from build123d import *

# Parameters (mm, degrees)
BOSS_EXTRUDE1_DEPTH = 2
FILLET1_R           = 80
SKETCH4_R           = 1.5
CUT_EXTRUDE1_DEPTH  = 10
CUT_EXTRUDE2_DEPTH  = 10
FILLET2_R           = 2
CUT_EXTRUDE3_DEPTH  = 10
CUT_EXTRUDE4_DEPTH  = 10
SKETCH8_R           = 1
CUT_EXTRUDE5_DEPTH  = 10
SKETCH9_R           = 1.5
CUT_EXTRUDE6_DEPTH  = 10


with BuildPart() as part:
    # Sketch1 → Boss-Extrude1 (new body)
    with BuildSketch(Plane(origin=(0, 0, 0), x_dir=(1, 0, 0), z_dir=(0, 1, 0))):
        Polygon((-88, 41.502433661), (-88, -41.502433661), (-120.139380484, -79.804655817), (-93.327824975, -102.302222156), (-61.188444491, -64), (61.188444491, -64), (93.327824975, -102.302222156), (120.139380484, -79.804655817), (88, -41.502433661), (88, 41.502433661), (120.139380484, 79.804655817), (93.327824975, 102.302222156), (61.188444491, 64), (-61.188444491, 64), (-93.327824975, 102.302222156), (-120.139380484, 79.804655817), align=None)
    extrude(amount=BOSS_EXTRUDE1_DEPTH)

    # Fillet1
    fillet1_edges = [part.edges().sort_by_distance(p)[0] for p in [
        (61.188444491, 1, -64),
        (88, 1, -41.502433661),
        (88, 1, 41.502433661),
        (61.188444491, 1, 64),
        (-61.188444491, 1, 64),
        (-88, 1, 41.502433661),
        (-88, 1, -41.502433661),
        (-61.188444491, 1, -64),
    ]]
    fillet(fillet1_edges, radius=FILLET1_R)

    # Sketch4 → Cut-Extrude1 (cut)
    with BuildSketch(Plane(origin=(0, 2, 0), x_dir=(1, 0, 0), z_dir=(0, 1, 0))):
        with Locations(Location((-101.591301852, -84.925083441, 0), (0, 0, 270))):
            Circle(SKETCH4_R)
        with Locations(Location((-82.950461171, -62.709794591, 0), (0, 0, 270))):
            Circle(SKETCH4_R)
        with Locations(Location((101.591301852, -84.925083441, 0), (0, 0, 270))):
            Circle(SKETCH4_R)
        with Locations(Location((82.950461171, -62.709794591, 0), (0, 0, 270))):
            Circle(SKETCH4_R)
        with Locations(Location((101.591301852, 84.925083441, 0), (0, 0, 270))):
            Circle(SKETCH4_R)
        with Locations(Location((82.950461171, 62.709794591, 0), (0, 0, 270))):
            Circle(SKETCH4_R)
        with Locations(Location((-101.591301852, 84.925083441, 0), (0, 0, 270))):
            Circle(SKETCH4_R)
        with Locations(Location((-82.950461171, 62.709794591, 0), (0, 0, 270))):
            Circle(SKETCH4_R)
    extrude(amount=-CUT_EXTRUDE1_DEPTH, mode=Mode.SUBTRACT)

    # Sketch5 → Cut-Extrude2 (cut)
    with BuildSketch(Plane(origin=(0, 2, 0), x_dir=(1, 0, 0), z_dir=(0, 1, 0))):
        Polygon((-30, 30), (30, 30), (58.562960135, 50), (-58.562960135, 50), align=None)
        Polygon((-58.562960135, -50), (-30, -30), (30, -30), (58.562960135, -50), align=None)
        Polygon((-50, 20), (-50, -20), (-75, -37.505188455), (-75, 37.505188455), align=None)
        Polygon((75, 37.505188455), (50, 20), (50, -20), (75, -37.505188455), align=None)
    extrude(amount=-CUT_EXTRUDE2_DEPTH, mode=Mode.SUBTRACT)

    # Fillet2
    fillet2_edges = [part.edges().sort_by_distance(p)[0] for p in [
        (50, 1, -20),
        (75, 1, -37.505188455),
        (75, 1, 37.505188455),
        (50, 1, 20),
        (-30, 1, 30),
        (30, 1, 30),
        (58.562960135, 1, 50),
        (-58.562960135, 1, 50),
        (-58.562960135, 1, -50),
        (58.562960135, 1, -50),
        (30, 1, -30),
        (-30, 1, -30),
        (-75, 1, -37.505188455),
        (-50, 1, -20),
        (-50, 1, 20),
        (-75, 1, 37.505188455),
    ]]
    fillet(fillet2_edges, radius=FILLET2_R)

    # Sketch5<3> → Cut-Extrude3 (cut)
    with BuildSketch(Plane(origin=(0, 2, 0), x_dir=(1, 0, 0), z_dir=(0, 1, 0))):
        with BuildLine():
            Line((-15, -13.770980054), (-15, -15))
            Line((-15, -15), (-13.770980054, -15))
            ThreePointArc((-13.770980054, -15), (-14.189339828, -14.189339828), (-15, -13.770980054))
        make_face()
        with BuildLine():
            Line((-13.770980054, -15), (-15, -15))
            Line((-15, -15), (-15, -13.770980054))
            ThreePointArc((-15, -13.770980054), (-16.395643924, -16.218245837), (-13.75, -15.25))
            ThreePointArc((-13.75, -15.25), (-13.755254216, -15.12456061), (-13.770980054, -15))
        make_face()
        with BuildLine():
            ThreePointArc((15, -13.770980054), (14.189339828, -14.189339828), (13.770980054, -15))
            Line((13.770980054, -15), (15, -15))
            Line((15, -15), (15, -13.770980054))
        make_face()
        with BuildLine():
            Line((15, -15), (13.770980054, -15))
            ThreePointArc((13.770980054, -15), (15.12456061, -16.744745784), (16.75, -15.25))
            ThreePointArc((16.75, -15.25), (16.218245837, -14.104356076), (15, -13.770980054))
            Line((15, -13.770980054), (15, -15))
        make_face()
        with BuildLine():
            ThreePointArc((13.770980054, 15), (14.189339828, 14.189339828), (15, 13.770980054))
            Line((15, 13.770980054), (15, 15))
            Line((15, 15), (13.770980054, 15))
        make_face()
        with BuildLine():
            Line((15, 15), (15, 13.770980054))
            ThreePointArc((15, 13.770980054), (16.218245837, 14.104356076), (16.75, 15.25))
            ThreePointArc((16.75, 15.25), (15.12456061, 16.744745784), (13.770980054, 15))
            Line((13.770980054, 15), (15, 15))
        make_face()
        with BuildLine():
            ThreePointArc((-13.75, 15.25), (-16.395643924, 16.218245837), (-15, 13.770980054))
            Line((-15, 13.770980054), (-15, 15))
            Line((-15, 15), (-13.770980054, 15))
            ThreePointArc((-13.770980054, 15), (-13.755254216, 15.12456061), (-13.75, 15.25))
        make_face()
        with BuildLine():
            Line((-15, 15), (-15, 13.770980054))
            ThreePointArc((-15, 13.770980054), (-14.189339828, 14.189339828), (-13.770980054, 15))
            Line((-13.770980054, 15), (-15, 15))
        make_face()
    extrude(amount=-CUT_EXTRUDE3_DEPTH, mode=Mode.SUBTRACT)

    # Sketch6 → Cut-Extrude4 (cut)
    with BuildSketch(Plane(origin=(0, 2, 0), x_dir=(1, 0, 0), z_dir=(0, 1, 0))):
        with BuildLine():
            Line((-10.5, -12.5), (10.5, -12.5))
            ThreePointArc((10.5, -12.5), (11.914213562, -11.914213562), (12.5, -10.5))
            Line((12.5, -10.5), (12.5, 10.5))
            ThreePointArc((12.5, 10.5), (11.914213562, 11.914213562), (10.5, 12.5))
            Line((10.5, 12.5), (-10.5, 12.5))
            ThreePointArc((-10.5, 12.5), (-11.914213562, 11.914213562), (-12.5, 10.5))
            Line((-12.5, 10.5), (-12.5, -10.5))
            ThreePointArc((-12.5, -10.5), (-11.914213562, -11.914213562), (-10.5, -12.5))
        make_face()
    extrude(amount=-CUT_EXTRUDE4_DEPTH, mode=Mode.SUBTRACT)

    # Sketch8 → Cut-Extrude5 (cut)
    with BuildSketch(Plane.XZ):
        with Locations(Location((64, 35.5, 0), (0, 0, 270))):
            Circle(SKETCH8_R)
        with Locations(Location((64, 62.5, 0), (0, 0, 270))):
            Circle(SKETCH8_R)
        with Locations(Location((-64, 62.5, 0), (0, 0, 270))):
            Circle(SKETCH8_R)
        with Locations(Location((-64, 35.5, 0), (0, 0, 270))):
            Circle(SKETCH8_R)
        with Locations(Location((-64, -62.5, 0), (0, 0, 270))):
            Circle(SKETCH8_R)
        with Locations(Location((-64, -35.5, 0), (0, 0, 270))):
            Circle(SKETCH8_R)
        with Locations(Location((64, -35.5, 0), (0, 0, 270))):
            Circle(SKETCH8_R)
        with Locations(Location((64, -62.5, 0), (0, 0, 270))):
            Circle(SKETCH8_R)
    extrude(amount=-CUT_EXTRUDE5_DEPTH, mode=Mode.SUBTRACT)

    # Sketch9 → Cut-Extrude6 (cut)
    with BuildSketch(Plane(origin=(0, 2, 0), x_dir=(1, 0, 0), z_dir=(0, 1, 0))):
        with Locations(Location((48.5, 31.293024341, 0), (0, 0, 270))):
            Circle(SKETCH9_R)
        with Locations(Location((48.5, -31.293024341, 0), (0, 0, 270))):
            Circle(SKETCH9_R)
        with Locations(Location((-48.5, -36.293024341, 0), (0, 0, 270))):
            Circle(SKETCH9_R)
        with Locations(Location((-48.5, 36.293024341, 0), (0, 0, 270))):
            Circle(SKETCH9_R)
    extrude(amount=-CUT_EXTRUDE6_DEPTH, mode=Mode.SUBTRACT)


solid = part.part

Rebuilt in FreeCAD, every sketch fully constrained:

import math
import FreeCAD as App
import Part
import Sketcher
Q = App.Units.Quantity


def edges_at(feature, points):
    """Names of the edges that pass closest to the given points."""
    edges = feature.Shape.Edges
    near = lambda p: min(range(len(edges)), key=lambda i: edges[i].distToShape(Part.Vertex(*p))[0])
    return sorted({f"Edge{near(p) + 1}" for p in points})

doc = App.newDocument("Part")
body = doc.addObject("PartDesign::Body", "Body")

# Sketch on XZ plane
sketch1 = body.newObject("Sketcher::SketchObject", "Sketch")
sketch1.AttachmentSupport = (doc.getObject("XZ_Plane"), [""])
sketch1.MapMode = "FlatFace"
sketch1.addGeometry([
    Part.LineSegment(App.Vector(-88, -42, 0), App.Vector(-88, 42, 0)),  # 0
    Part.LineSegment(App.Vector(-88, 42, 0), App.Vector(-120, 80, 0)),  # 1
    Part.LineSegment(App.Vector(-120, 80, 0), App.Vector(-93, 102, 0)),  # 2
    Part.LineSegment(App.Vector(-93, 102, 0), App.Vector(-61, 64, 0)),  # 3
    Part.LineSegment(App.Vector(-61, 64, 0), App.Vector(61, 64, 0)),  # 4
    Part.LineSegment(App.Vector(61, 64, 0), App.Vector(93, 102, 0)),  # 5
    Part.LineSegment(App.Vector(93, 102, 0), App.Vector(120, 80, 0)),  # 6
    Part.LineSegment(App.Vector(120, 80, 0), App.Vector(88, 42, 0)),  # 7
    Part.LineSegment(App.Vector(88, 42, 0), App.Vector(88, -42, 0)),  # 8
    Part.LineSegment(App.Vector(88, -42, 0), App.Vector(120, -80, 0)),  # 9
    Part.LineSegment(App.Vector(120, -80, 0), App.Vector(93, -102, 0)),  # 10
    Part.LineSegment(App.Vector(93, -102, 0), App.Vector(61, -64, 0)),  # 11
    Part.LineSegment(App.Vector(61, -64, 0), App.Vector(-61, -64, 0)),  # 12
    Part.LineSegment(App.Vector(-61, -64, 0), App.Vector(-93, -102, 0)),  # 13
    Part.LineSegment(App.Vector(-93, -102, 0), App.Vector(-120, -80, 0)),  # 14
    Part.LineSegment(App.Vector(-120, -80, 0), App.Vector(-88, -42, 0)),  # 15
], False)
sketch1.addConstraint([
    Sketcher.Constraint("Coincident", 0, 2, 1, 1),
    Sketcher.Constraint("Coincident", 1, 2, 2, 1),
    Sketcher.Constraint("Coincident", 2, 2, 3, 1),
    Sketcher.Constraint("Coincident", 3, 2, 4, 1),
    Sketcher.Constraint("Coincident", 4, 2, 5, 1),
    Sketcher.Constraint("Coincident", 5, 2, 6, 1),
    Sketcher.Constraint("Coincident", 6, 2, 7, 1),
    Sketcher.Constraint("Coincident", 7, 2, 8, 1),
    Sketcher.Constraint("Coincident", 8, 2, 9, 1),
    Sketcher.Constraint("Coincident", 9, 2, 10, 1),
    Sketcher.Constraint("Coincident", 10, 2, 11, 1),
    Sketcher.Constraint("Coincident", 11, 2, 12, 1),
    Sketcher.Constraint("Coincident", 12, 2, 13, 1),
    Sketcher.Constraint("Coincident", 13, 2, 14, 1),
    Sketcher.Constraint("Coincident", 14, 2, 15, 1),
    Sketcher.Constraint("Coincident", 15, 2, 0, 1),
    Sketcher.Constraint("Vertical", 0),
    Sketcher.Constraint("Horizontal", 4),
    Sketcher.Constraint("Vertical", 8),
    Sketcher.Constraint("Horizontal", 12),
    Sketcher.Constraint("Symmetric", 0, 2, 8, 2, -1, 1),
    Sketcher.Constraint("Symmetric", 1, 2, 9, 2, -1, 1),
    Sketcher.Constraint("Symmetric", 2, 2, 10, 2, -1, 1),
    Sketcher.Constraint("Symmetric", 3, 2, 11, 2, -1, 1),
    Sketcher.Constraint("Symmetric", 5, 2, 13, 2, -1, 1),
    Sketcher.Constraint("Symmetric", 6, 2, 14, 2, -1, 1),
    Sketcher.Constraint("Symmetric", 2, 2, 5, 2, -2),
    Sketcher.Constraint("Symmetric", 1, 2, 6, 2, -2),
    Sketcher.Constraint("Perpendicular", 1, 2),
    Sketcher.Constraint("Perpendicular", 2, 3),
    Sketcher.Constraint("Perpendicular", 5, 6),
    Sketcher.Constraint("Perpendicular", 6, 7),
    Sketcher.Constraint("Parallel", 7, 13),
    Sketcher.Constraint("Perpendicular", 14, 15),
    Sketcher.Constraint("Equal", 1, 3),
    Sketcher.Constraint("Angle", 1, Q("130 deg")),
    Sketcher.Constraint("Distance", 1, 50.0),
    Sketcher.Constraint("Distance", 2, 35.0),
    Sketcher.Constraint("DistanceX", 0, 2, -1, 1, 88.0),
    Sketcher.Constraint("DistanceY", -1, 1, 3, 2, 64.0),
])
pad1 = body.newObject("PartDesign::Pad", "Pad")
pad1.Profile = sketch1
pad1.Length = 2
pad1.Reversed = True
doc.recompute()

fillet = body.newObject("PartDesign::Fillet", "Fillet")
fillet.Base = (pad1, edges_at(pad1, [
    (61.188, 1, -64),
    (88, 1, -41.502),
    (88, 1, 41.502),
    (61.188, 1, 64),
    (-61.188, 1, 64),
    (-88, 1, 41.502),
    (-88, 1, -41.502),
    (-61.188, 1, -64),
]))
fillet.Radius = 80

# Sketch on XZ plane
sketch2 = body.newObject("Sketcher::SketchObject", "Sketch001")
sketch2.AttachmentSupport = (doc.getObject("XZ_Plane"), [""])
sketch2.MapMode = "FlatFace"
sketch2.AttachmentOffset = App.Placement(App.Vector(0, 0, -2), App.Rotation())
sketch2.addGeometry([
    Part.Circle(App.Vector(-101.6, 84.9, 0), App.Vector(0, 0, 1), 1.5),  # 0
    Part.Circle(App.Vector(-83, 62.7, 0), App.Vector(0, 0, 1), 1.5),  # 1
    Part.Circle(App.Vector(101.6, 84.9, 0), App.Vector(0, 0, 1), 1.5),  # 2
    Part.Circle(App.Vector(83, 62.7, 0), App.Vector(0, 0, 1), 1.5),  # 3
    Part.Circle(App.Vector(101.6, -84.9, 0), App.Vector(0, 0, 1), 1.5),  # 4
    Part.Circle(App.Vector(83, -62.7, 0), App.Vector(0, 0, 1), 1.5),  # 5
    Part.Circle(App.Vector(-101.6, -84.9, 0), App.Vector(0, 0, 1), 1.5),  # 6
    Part.Circle(App.Vector(-83, -62.7, 0), App.Vector(0, 0, 1), 1.5),  # 7
], False)
sketch2.addConstraint([
    Sketcher.Constraint("Equal", 0, 1),
    Sketcher.Constraint("Equal", 1, 2),
    Sketcher.Constraint("Equal", 2, 3),
    Sketcher.Constraint("Equal", 3, 4),
    Sketcher.Constraint("Equal", 4, 5),
    Sketcher.Constraint("Equal", 5, 6),
    Sketcher.Constraint("Equal", 6, 7),
    Sketcher.Constraint("Symmetric", 0, 3, 4, 3, -1, 1),
    Sketcher.Constraint("Symmetric", 1, 3, 5, 3, -1, 1),
    Sketcher.Constraint("Symmetric", 2, 3, 6, 3, -1, 1),
    Sketcher.Constraint("Symmetric", 3, 3, 7, 3, -1, 1),
    Sketcher.Constraint("Symmetric", 0, 3, 2, 3, -2),
    Sketcher.Constraint("Symmetric", 1, 3, 3, 3, -2),
    Sketcher.Constraint("Diameter", 0, 3.0),
    Sketcher.Constraint("DistanceX", 0, 3, -1, 1, 101.591302),
    Sketcher.Constraint("DistanceX", 1, 3, -1, 1, 82.950461),
    Sketcher.Constraint("DistanceY", 1, 3, 0, 3, 22.215289),
    Sketcher.Constraint("DistanceY", 4, 3, 3, 3, 147.634878),
])
pocket1 = body.newObject("PartDesign::Pocket", "Pocket")
pocket1.Profile = sketch2
pocket1.Length = 10
pocket1.Reversed = True

# Sketch on XZ plane
sketch3 = body.newObject("Sketcher::SketchObject", "Sketch002")
sketch3.AttachmentSupport = (doc.getObject("XZ_Plane"), [""])
sketch3.MapMode = "FlatFace"
sketch3.AttachmentOffset = App.Placement(App.Vector(0, 0, -2), App.Rotation())
sketch3.addGeometry([
    Part.LineSegment(App.Vector(-30, -30, 0), App.Vector(30, -30, 0)),  # 0
    Part.LineSegment(App.Vector(30, -30, 0), App.Vector(59, -50, 0)),  # 1
    Part.LineSegment(App.Vector(59, -50, 0), App.Vector(-59, -50, 0)),  # 2
    Part.LineSegment(App.Vector(-59, -50, 0), App.Vector(-30, -30, 0)),  # 3
    Part.LineSegment(App.Vector(-30, 30, 0), App.Vector(-59, 50, 0)),  # 4
    Part.LineSegment(App.Vector(-59, 50, 0), App.Vector(59, 50, 0)),  # 5
    Part.LineSegment(App.Vector(59, 50, 0), App.Vector(30, 30, 0)),  # 6
    Part.LineSegment(App.Vector(30, 30, 0), App.Vector(-30, 30, 0)),  # 7
    Part.LineSegment(App.Vector(-50, 20, 0), App.Vector(-50, -20, 0)),  # 8
    Part.LineSegment(App.Vector(-50, -20, 0), App.Vector(-75, -38, 0)),  # 9
    Part.LineSegment(App.Vector(-75, -38, 0), App.Vector(-75, 38, 0)),  # 10
    Part.LineSegment(App.Vector(-75, 38, 0), App.Vector(-50, 20, 0)),  # 11
    Part.LineSegment(App.Vector(75, -38, 0), App.Vector(50, -20, 0)),  # 12
    Part.LineSegment(App.Vector(50, -20, 0), App.Vector(50, 20, 0)),  # 13
    Part.LineSegment(App.Vector(50, 20, 0), App.Vector(75, 38, 0)),  # 14
    Part.LineSegment(App.Vector(75, 38, 0), App.Vector(75, -38, 0)),  # 15
], False)
sketch3.addConstraint([
    Sketcher.Constraint("Coincident", 0, 2, 1, 1),
    Sketcher.Constraint("Coincident", 1, 2, 2, 1),
    Sketcher.Constraint("Coincident", 2, 2, 3, 1),
    Sketcher.Constraint("Coincident", 3, 2, 0, 1),
    Sketcher.Constraint("Coincident", 4, 2, 5, 1),
    Sketcher.Constraint("Coincident", 5, 2, 6, 1),
    Sketcher.Constraint("Coincident", 6, 2, 7, 1),
    Sketcher.Constraint("Coincident", 7, 2, 4, 1),
    Sketcher.Constraint("Coincident", 8, 2, 9, 1),
    Sketcher.Constraint("Coincident", 9, 2, 10, 1),
    Sketcher.Constraint("Coincident", 10, 2, 11, 1),
    Sketcher.Constraint("Coincident", 11, 2, 8, 1),
    Sketcher.Constraint("Coincident", 12, 2, 13, 1),
    Sketcher.Constraint("Coincident", 13, 2, 14, 1),
    Sketcher.Constraint("Coincident", 14, 2, 15, 1),
    Sketcher.Constraint("Coincident", 15, 2, 12, 1),
    Sketcher.Constraint("Horizontal", 0),
    Sketcher.Constraint("Horizontal", 2),
    Sketcher.Constraint("Horizontal", 5),
    Sketcher.Constraint("Horizontal", 7),
    Sketcher.Constraint("Vertical", 8),
    Sketcher.Constraint("Vertical", 10),
    Sketcher.Constraint("Vertical", 13),
    Sketcher.Constraint("Vertical", 15),
    Sketcher.Constraint("Symmetric", 1, 2, 4, 2, -1, 1),
    Sketcher.Constraint("Symmetric", 3, 2, 6, 2, -1, 1),
    Sketcher.Constraint("Symmetric", 11, 2, 12, 2, -1, 1),
    Sketcher.Constraint("Symmetric", 9, 2, 14, 2, -1, 1),
    Sketcher.Constraint("Parallel", 1, 4),
    Sketcher.Constraint("Parallel", 3, 6),
    Sketcher.Constraint("Parallel", 6, 9),
    Sketcher.Constraint("Parallel", 4, 11),
    Sketcher.Constraint("Parallel", 11, 12),
    Sketcher.Constraint("Parallel", 9, 14),
    Sketcher.Constraint("Horizontal", 8, 2, 12, 2),
    Sketcher.Constraint("Horizontal", 10, 2, 14, 2),
    Sketcher.Constraint("Vertical", 2, 2, 4, 2),
    Sketcher.Constraint("DistanceX", 0, 1, 0, 2, 60.0),
    Sketcher.Constraint("DistanceY", 8, 2, 8, 1, 40.0),
    Sketcher.Constraint("Angle", 1, Q("-35 deg")),
    Sketcher.Constraint("DistanceY", 0, 2, -1, 1, 30.0),
    Sketcher.Constraint("DistanceY", 1, 2, -1, 1, 50.0),
    Sketcher.Constraint("DistanceX", 8, 2, -1, 1, 50.0),
    Sketcher.Constraint("DistanceX", 9, 2, -1, 1, 75.0),
])
pocket2 = body.newObject("PartDesign::Pocket", "Pocket001")
pocket2.Profile = sketch3
pocket2.Length = 10
pocket2.Reversed = True
doc.recompute()

fillet2 = body.newObject("PartDesign::Fillet", "Fillet001")
fillet2.Base = (pocket2, edges_at(pocket2, [
    (50, 1, -20),
    (75, 1, -37.505),
    (75, 1, 37.505),
    (50, 1, 20),
    (-30, 1, 30),
    (30, 1, 30),
    (58.563, 1, 50),
    (-58.563, 1, 50),
    (-58.563, 1, -50),
    (58.563, 1, -50),
    (30, 1, -30),
    (-30, 1, -30),
    (-75, 1, -37.505),
    (-50, 1, -20),
    (-50, 1, 20),
    (-75, 1, 37.505),
]))
fillet2.Radius = 2

# Sketch on XZ plane
sketch4 = body.newObject("Sketcher::SketchObject", "Sketch003")
sketch4.AttachmentSupport = (doc.getObject("XZ_Plane"), [""])
sketch4.MapMode = "FlatFace"
sketch4.AttachmentOffset = App.Placement(App.Vector(0, 0, -2), App.Rotation())
sketch4.addGeometry([
    Part.ArcOfCircle(Part.Circle(App.Vector(-15.25, 15.25, 0), App.Vector(0, 0, 1), 1.5), math.radians(-80), math.radians(-10)),  # 0
    Part.ArcOfCircle(Part.Circle(App.Vector(-15.25, 15.25, 0), App.Vector(0, 0, 1), 1.5), math.radians(0), math.radians(280)),  # 1
    Part.ArcOfCircle(Part.Circle(App.Vector(-15.25, 15.25, 0), App.Vector(0, 0, 1), 1.5), math.radians(-9.59), math.radians(0)),  # 2
    Part.ArcOfCircle(Part.Circle(App.Vector(15.25, 15.25, 0), App.Vector(0, 0, 1), 1.5), math.radians(-170), math.radians(-100)),  # 3
    Part.ArcOfCircle(Part.Circle(App.Vector(15.25, 15.25, 0), App.Vector(0, 0, 1), 1.5), math.radians(0), math.radians(190)),  # 4
    Part.ArcOfCircle(Part.Circle(App.Vector(15.25, 15.25, 0), App.Vector(0, 0, 1), 1.5), math.radians(-100), math.radians(0)),  # 5
    Part.ArcOfCircle(Part.Circle(App.Vector(15.25, -15.25, 0), App.Vector(0, 0, 1), 1.5), math.radians(100), math.radians(170)),  # 6
    Part.ArcOfCircle(Part.Circle(App.Vector(15.25, -15.25, 0), App.Vector(0, 0, 1), 1.5), math.radians(0), math.radians(100)),  # 7
    Part.ArcOfCircle(Part.Circle(App.Vector(15.25, -15.25, 0), App.Vector(0, 0, 1), 1.5), math.radians(170), math.radians(360)),  # 8
    Part.ArcOfCircle(Part.Circle(App.Vector(-15.25, -15.25, 0), App.Vector(0, 0, 1), 1.5), math.radians(80), math.radians(360)),  # 9
    Part.ArcOfCircle(Part.Circle(App.Vector(-15.25, -15.25, 0), App.Vector(0, 0, 1), 1.5), math.radians(10), math.radians(80)),  # 10
    Part.ArcOfCircle(Part.Circle(App.Vector(-15.25, -15.25, 0), App.Vector(0, 0, 1), 1.5), math.radians(0), math.radians(9.59)),  # 11
], False)
sketch4.addConstraint([
    Sketcher.Constraint("Tangent", 0, 1, 1, 2),
    Sketcher.Constraint("Tangent", 1, 1, 2, 2),
    Sketcher.Constraint("Tangent", 2, 1, 0, 2),
    Sketcher.Constraint("Tangent", 3, 1, 4, 2),
    Sketcher.Constraint("Tangent", 4, 1, 5, 2),
    Sketcher.Constraint("Tangent", 5, 1, 3, 2),
    Sketcher.Constraint("Tangent", 6, 1, 7, 2),
    Sketcher.Constraint("Tangent", 7, 1, 8, 2),
    Sketcher.Constraint("Tangent", 8, 1, 6, 2),
    Sketcher.Constraint("Tangent", 9, 1, 10, 2),
    Sketcher.Constraint("Tangent", 10, 1, 11, 2),
    Sketcher.Constraint("Tangent", 11, 1, 9, 2),
    Sketcher.Constraint("Equal", 2, 3),
    Sketcher.Constraint("Equal", 5, 6),
    Sketcher.Constraint("Equal", 8, 9),
    Sketcher.Constraint("Symmetric", 0, 3, 6, 3, -1, 1),
    Sketcher.Constraint("Symmetric", 3, 3, 9, 3, -1, 1),
    Sketcher.Constraint("Symmetric", 0, 3, 3, 3, -2),
    Sketcher.Constraint("Horizontal", 5, 3, 1, 1),
    Sketcher.Constraint("Horizontal", 2, 1, 3, 1),
    Sketcher.Constraint("Horizontal", 1, 1, 4, 1),
    Sketcher.Constraint("Horizontal", 0, 1, 5, 1),
    Sketcher.Constraint("Horizontal", 11, 3, 7, 1),
    Sketcher.Constraint("Horizontal", 6, 1, 9, 1),
    Sketcher.Constraint("Horizontal", 8, 1, 10, 1),
    Sketcher.Constraint("Horizontal", 7, 1, 11, 1),
    Sketcher.Constraint("Vertical", 5, 1, 6, 1),
    Sketcher.Constraint("Vertical", 3, 1, 8, 1),
    Sketcher.Constraint("Radius", 0, 1.5),
    Sketcher.Constraint("DistanceX", 0, 1, -1, 1, 15.0),
    Sketcher.Constraint("DistanceY", -1, 1, 2, 1, 15.0),
    Sketcher.Constraint("DistanceX", 1, 1, 3, 3, 29.0),
    Sketcher.Constraint("DistanceY", 6, 3, 5, 3, 30.5),
])
pocket3 = body.newObject("PartDesign::Pocket", "Pocket002")
pocket3.Profile = sketch4
pocket3.Length = 10
pocket3.Reversed = True

# Sketch on XZ plane
sketch5 = body.newObject("Sketcher::SketchObject", "Sketch004")
sketch5.AttachmentSupport = (doc.getObject("XZ_Plane"), [""])
sketch5.MapMode = "FlatFace"
sketch5.AttachmentOffset = App.Placement(App.Vector(0, 0, -2), App.Rotation())
sketch5.addGeometry([
    Part.LineSegment(App.Vector(-10.5, 12.5, 0), App.Vector(10.5, 12.5, 0)),  # 0
    Part.ArcOfCircle(Part.Circle(App.Vector(10.5, 10.5, 0), App.Vector(0, 0, 1), 2), math.radians(0), math.radians(90)),  # 1
    Part.LineSegment(App.Vector(12.5, 10.5, 0), App.Vector(12.5, -10.5, 0)),  # 2
    Part.ArcOfCircle(Part.Circle(App.Vector(10.5, -10.5, 0), App.Vector(0, 0, 1), 2), math.radians(-90), math.radians(0)),  # 3
    Part.LineSegment(App.Vector(10.5, -12.5, 0), App.Vector(-10.5, -12.5, 0)),  # 4
    Part.ArcOfCircle(Part.Circle(App.Vector(-10.5, -10.5, 0), App.Vector(0, 0, 1), 2), math.radians(-180), math.radians(-90)),  # 5
    Part.LineSegment(App.Vector(-12.5, -10.5, 0), App.Vector(-12.5, 10.5, 0)),  # 6
    Part.ArcOfCircle(Part.Circle(App.Vector(-10.5, 10.5, 0), App.Vector(0, 0, 1), 2), math.radians(90), math.radians(180)),  # 7
], False)
sketch5.addConstraint([
    Sketcher.Constraint("Tangent", 0, 2, 1, 2),
    Sketcher.Constraint("Tangent", 1, 1, 2, 1),
    Sketcher.Constraint("Tangent", 2, 2, 3, 2),
    Sketcher.Constraint("Tangent", 3, 1, 4, 1),
    Sketcher.Constraint("Tangent", 4, 2, 5, 2),
    Sketcher.Constraint("Tangent", 5, 1, 6, 1),
    Sketcher.Constraint("Tangent", 6, 2, 7, 2),
    Sketcher.Constraint("Tangent", 7, 1, 0, 1),
    Sketcher.Constraint("Horizontal", 0),
    Sketcher.Constraint("Vertical", 2),
    Sketcher.Constraint("Horizontal", 4),
    Sketcher.Constraint("Vertical", 6),
    Sketcher.Constraint("Equal", 1, 3),
    Sketcher.Constraint("Equal", 3, 5),
    Sketcher.Constraint("Equal", 5, 7),
    Sketcher.Constraint("Symmetric", 1, 3, 5, 3, -1, 1),
    Sketcher.Constraint("Equal", 4, 2),
    Sketcher.Constraint("Radius", 1, 2.0),
    Sketcher.Constraint("DistanceX", 0, 1, 0, 2, 21.0),
])
pocket4 = body.newObject("PartDesign::Pocket", "Pocket003")
pocket4.Profile = sketch5
pocket4.Length = 10
pocket4.Reversed = True

# Sketch on XZ plane
sketch6 = body.newObject("Sketcher::SketchObject", "Sketch005")
sketch6.AttachmentSupport = (doc.getObject("XZ_Plane"), [""])
sketch6.MapMode = "FlatFace"
sketch6.addGeometry([
    Part.Circle(App.Vector(64, 35.5, 0), App.Vector(0, 0, 1), 1),  # 0
    Part.Circle(App.Vector(64, 62.5, 0), App.Vector(0, 0, 1), 1),  # 1
    Part.Circle(App.Vector(-64, 62.5, 0), App.Vector(0, 0, 1), 1),  # 2
    Part.Circle(App.Vector(-64, 35.5, 0), App.Vector(0, 0, 1), 1),  # 3
    Part.Circle(App.Vector(-64, -62.5, 0), App.Vector(0, 0, 1), 1),  # 4
    Part.Circle(App.Vector(-64, -35.5, 0), App.Vector(0, 0, 1), 1),  # 5
    Part.Circle(App.Vector(64, -35.5, 0), App.Vector(0, 0, 1), 1),  # 6
    Part.Circle(App.Vector(64, -62.5, 0), App.Vector(0, 0, 1), 1),  # 7
], False)
sketch6.addConstraint([
    Sketcher.Constraint("Equal", 0, 1),
    Sketcher.Constraint("Equal", 1, 2),
    Sketcher.Constraint("Equal", 2, 3),
    Sketcher.Constraint("Equal", 3, 4),
    Sketcher.Constraint("Equal", 4, 5),
    Sketcher.Constraint("Equal", 5, 6),
    Sketcher.Constraint("Equal", 6, 7),
    Sketcher.Constraint("Symmetric", 1, 3, 4, 3, -1, 1),
    Sketcher.Constraint("Symmetric", 0, 3, 5, 3, -1, 1),
    Sketcher.Constraint("Symmetric", 3, 3, 6, 3, -1, 1),
    Sketcher.Constraint("Symmetric", 2, 3, 7, 3, -1, 1),
    Sketcher.Constraint("Symmetric", 1, 3, 2, 3, -2),
    Sketcher.Constraint("Symmetric", 0, 3, 3, 3, -2),
    Sketcher.Constraint("Vertical", 0, 3, 1, 3),
    Sketcher.Constraint("Diameter", 0, 2.0),
    Sketcher.Constraint("DistanceX", -1, 1, 0, 3, 64.0),
    Sketcher.Constraint("DistanceY", 0, 3, 1, 3, 27.0),
    Sketcher.Constraint("DistanceY", 4, 3, 3, 3, 98.0),
])
pocket5 = body.newObject("PartDesign::Pocket", "Pocket004")
pocket5.Profile = sketch6
pocket5.Length = 10

# Sketch on XZ plane
sketch7 = body.newObject("Sketcher::SketchObject", "Sketch006")
sketch7.AttachmentSupport = (doc.getObject("XZ_Plane"), [""])
sketch7.MapMode = "FlatFace"
sketch7.AttachmentOffset = App.Placement(App.Vector(0, 0, -2), App.Rotation())
sketch7.addGeometry([
    Part.Circle(App.Vector(48.5, -31.3, 0), App.Vector(0, 0, 1), 1.5),
    Part.Circle(App.Vector(48.5, 31.3, 0), App.Vector(0, 0, 1), 1.5),
    Part.Circle(App.Vector(-48.5, 36.3, 0), App.Vector(0, 0, 1), 1.5),
    Part.Circle(App.Vector(-48.5, -36.3, 0), App.Vector(0, 0, 1), 1.5),
], False)
sketch7.addConstraint([
    Sketcher.Constraint("Equal", 0, 1),
    Sketcher.Constraint("Equal", 1, 2),
    Sketcher.Constraint("Equal", 2, 3),
    Sketcher.Constraint("Symmetric", 0, 3, 1, 3, -1),
    Sketcher.Constraint("Symmetric", 2, 3, 3, 3, -1),
    Sketcher.Constraint("Diameter", 0, 3.0),
    Sketcher.Constraint("DistanceX", 2, 3, 1, 3, 97.0),
    Sketcher.Constraint("DistanceY", 1, 3, 2, 3, 5.0),
    Sketcher.Constraint("DistanceX", -1, 1, 0, 3, 48.5),
    Sketcher.Constraint("DistanceY", 0, 3, 1, 3, 62.586049),
])
pocket6 = body.newObject("PartDesign::Pocket", "Pocket005")
pocket6.Profile = sketch7
pocket6.Length = 10
pocket6.Reversed = True

doc.recompute()
